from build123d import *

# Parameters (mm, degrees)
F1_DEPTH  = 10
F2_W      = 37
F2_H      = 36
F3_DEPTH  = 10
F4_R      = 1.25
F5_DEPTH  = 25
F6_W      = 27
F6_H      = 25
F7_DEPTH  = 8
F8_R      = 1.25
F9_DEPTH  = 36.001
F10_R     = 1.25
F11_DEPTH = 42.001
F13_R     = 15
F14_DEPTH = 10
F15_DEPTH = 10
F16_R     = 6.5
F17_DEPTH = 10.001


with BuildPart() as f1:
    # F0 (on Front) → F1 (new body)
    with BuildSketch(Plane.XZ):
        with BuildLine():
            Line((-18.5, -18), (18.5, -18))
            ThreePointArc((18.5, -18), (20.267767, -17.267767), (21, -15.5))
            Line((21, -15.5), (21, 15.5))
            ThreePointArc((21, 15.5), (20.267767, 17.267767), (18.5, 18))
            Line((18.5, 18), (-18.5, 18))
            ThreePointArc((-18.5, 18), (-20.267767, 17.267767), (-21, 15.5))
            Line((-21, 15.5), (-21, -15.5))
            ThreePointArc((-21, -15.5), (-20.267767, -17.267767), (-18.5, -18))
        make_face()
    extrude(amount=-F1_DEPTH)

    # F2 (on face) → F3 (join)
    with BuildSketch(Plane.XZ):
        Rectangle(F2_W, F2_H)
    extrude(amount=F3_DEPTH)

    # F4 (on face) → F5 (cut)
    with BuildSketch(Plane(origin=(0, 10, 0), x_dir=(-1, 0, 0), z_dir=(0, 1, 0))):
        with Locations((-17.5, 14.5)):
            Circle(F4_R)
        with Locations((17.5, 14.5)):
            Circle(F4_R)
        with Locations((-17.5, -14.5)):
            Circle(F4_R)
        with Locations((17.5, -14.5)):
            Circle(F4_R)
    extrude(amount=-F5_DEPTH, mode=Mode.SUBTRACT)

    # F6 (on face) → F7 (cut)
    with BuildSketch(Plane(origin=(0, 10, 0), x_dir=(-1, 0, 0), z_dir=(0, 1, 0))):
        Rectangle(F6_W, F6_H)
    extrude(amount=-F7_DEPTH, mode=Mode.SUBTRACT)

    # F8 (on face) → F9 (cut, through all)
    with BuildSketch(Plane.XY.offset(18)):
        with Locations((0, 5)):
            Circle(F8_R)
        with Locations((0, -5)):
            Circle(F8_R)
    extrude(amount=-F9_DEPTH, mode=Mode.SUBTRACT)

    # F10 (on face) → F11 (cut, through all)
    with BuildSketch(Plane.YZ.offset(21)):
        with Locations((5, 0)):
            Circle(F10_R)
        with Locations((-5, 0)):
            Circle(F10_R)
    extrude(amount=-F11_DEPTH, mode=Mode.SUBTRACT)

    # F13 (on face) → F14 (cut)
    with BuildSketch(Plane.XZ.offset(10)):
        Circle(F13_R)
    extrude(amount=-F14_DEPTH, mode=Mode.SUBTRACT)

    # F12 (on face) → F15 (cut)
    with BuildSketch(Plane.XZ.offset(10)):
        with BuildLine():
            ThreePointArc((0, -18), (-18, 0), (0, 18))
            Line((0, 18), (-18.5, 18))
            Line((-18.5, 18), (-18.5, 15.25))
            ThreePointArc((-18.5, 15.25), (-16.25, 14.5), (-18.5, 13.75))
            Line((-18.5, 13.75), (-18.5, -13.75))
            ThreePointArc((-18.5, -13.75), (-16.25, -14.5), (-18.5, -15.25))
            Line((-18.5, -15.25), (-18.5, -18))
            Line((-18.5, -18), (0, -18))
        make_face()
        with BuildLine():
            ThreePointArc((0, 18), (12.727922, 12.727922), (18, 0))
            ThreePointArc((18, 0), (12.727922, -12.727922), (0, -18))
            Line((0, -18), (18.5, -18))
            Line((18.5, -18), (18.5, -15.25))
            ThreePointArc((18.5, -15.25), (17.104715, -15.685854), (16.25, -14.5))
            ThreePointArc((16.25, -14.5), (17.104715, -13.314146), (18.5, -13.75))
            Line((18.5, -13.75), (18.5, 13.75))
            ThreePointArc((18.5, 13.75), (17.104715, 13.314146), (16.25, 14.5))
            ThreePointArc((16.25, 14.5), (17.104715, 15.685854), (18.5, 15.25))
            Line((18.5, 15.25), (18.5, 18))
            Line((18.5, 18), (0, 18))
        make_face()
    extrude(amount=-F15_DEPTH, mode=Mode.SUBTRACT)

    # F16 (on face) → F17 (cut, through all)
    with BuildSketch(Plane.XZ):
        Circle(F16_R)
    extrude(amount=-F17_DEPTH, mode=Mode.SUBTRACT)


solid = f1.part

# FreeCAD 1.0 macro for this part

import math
import FreeCAD as App
import Part
import Sketcher
Q = App.Units.Quantity

doc = App.newDocument("Part")
body = doc.addObject("PartDesign::Body", "Body")

# Sketch on XZ plane
sketch1 = doc.addObject("Sketcher::SketchObject", "Sketch")
body.addObject(sketch1)
sketch1.AttachmentSupport = (doc.XZ_Plane, [""])
sketch1.MapMode = "FlatFace"
sketch1.addGeometry([
    Part.LineSegment(App.Vector(-18.5, -18, 0), App.Vector(18.5, -18, 0)),  # 0
    Part.ArcOfCircle(Part.Circle(App.Vector(18.5, -15.5, 0), App.Vector(0, 0, 1), 2.5), math.radians(-90), math.radians(0)),  # 1
    Part.LineSegment(App.Vector(21, -15.5, 0), App.Vector(21, 15.5, 0)),  # 2
    Part.ArcOfCircle(Part.Circle(App.Vector(18.5, 15.5, 0), App.Vector(0, 0, 1), 2.5), math.radians(0), math.radians(90)),  # 3
    Part.LineSegment(App.Vector(18.5, 18, 0), App.Vector(-18.5, 18, 0)),  # 4
    Part.ArcOfCircle(Part.Circle(App.Vector(-18.5, 15.5, 0), App.Vector(0, 0, 1), 2.5), math.radians(90), math.radians(180)),  # 5
    Part.LineSegment(App.Vector(-21, 15.5, 0), App.Vector(-21, -15.5, 0)),  # 6
    Part.ArcOfCircle(Part.Circle(App.Vector(-18.5, -15.5, 0), App.Vector(0, 0, 1), 2.5), math.radians(180), math.radians(270)),  # 7
], False)
sketch1.addConstraint([
    Sketcher.Constraint("Tangent", 0, 2, 1, 1),
    Sketcher.Constraint("Tangent", 1, 2, 2, 1),
    Sketcher.Constraint("Tangent", 2, 2, 3, 1),
    Sketcher.Constraint("Tangent", 3, 2, 4, 1),
    Sketcher.Constraint("Tangent", 4, 2, 5, 1),
    Sketcher.Constraint("Tangent", 5, 2, 6, 1),
    Sketcher.Constraint("Tangent", 6, 2, 7, 1),
    Sketcher.Constraint("Tangent", 7, 2, 0, 1),
    Sketcher.Constraint("Horizontal", 0),
    Sketcher.Constraint("Vertical", 2),
    Sketcher.Constraint("Horizontal", 4),
    Sketcher.Constraint("Vertical", 6),
    Sketcher.Constraint("Equal", 1, 3),
    Sketcher.Constraint("Equal", 3, 5),
    Sketcher.Constraint("Equal", 5, 7),
    Sketcher.Constraint("Symmetric", 1, 3, 5, 3, -1, 1),
    Sketcher.Constraint("Radius", 1, Q("2.5 mm")),
    Sketcher.Constraint("DistanceX", 0, 1, 0, 2, Q("37 mm")),
    Sketcher.Constraint("DistanceY", 2, 1, 2, 2, Q("31 mm")),
])
pad1 = doc.addObject("PartDesign::Pad", "Pad")
body.addObject(pad1)
pad1.Profile = sketch1
pad1.Length = 10
pad1.Reversed = True

# Sketch on XZ plane
sketch2 = doc.addObject("Sketcher::SketchObject", "Sketch001")
body.addObject(sketch2)
sketch2.AttachmentSupport = (doc.XZ_Plane, [""])
sketch2.MapMode = "FlatFace"
sketch2.addGeometry([
    Part.LineSegment(App.Vector(-18, 18, 0), App.Vector(-18, -18, 0)),
    Part.LineSegment(App.Vector(-18, -18, 0), App.Vector(18, -18, 0)),
    Part.LineSegment(App.Vector(18, -18, 0), App.Vector(18, 18, 0)),
    Part.LineSegment(App.Vector(18, 18, 0), App.Vector(-18, 18, 0)),
], False)
sketch2.addConstraint([
    Sketcher.Constraint("Coincident", 0, 2, 1, 1),
    Sketcher.Constraint("Coincident", 1, 2, 2, 1),
    Sketcher.Constraint("Coincident", 2, 2, 3, 1),
    Sketcher.Constraint("Coincident", 3, 2, 0, 1),
    Sketcher.Constraint("Vertical", 0),
    Sketcher.Constraint("Horizontal", 1),
    Sketcher.Constraint("Vertical", 2),
    Sketcher.Constraint("Horizontal", 3),
    Sketcher.Constraint("Symmetric", 0, 2, 2, 2, -1, 1),
    Sketcher.Constraint("DistanceX", 1, 1, 1, 2, Q("37 mm")),
    Sketcher.Constraint("DistanceY", 0, 2, 0, 1, Q("36 mm")),
])
pad2 = doc.addObject("PartDesign::Pad", "Pad001")
body.addObject(pad2)
pad2.Profile = sketch2
pad2.Length = 10

# Sketch on XZ plane
sketch3 = doc.addObject("Sketcher::SketchObject", "Sketch002")
body.addObject(sketch3)
sketch3.AttachmentSupport = (doc.XZ_Plane, [""])
sketch3.MapMode = "FlatFace"
sketch3.AttachmentOffset = App.Placement(App.Vector(0, 0, -10), App.Rotation())
sketch3.addGeometry([
    Part.Circle(App.Vector(17.5, 14.5, 0), App.Vector(0, 0, 1), 1.2),
    Part.Circle(App.Vector(-17.5, 14.5, 0), App.Vector(0, 0, 1), 1.2),
    Part.Circle(App.Vector(17.5, -14.5, 0), App.Vector(0, 0, 1), 1.2),
    Part.Circle(App.Vector(-17.5, -14.5, 0), App.Vector(0, 0, 1), 1.2),
], False)
sketch3.addConstraint([
    Sketcher.Constraint("Equal", 0, 1),
    Sketcher.Constraint("Equal", 1, 2),
    Sketcher.Constraint("Equal", 2, 3),
    Sketcher.Constraint("Symmetric", 1, 3, 2, 3, -1, 1),
    Sketcher.Constraint("Symmetric", 0, 3, 3, 3, -1, 1),
    Sketcher.Constraint("Symmetric", 0, 3, 1, 3, -2),
    Sketcher.Constraint("Diameter", 0, Q("2.5 mm")),
    Sketcher.Constraint("DistanceX", 1, 3, 0, 3, Q("35 mm")),
    Sketcher.Constraint("DistanceY", 2, 3, 0, 3, Q("29 mm")),
])
pocket1 = doc.addObject("PartDesign::Pocket", "Pocket")
body.addObject(pocket1)
pocket1.Profile = sketch3
pocket1.Length = 25
pocket1.Reversed = True

# Sketch on XZ plane
sketch4 = doc.addObject("Sketcher::SketchObject", "Sketch003")
body.addObject(sketch4)
sketch4.AttachmentSupport = (doc.XZ_Plane, [""])
sketch4.MapMode = "FlatFace"
sketch4.AttachmentOffset = App.Placement(App.Vector(0, 0, -10), App.Rotation())
sketch4.addGeometry([
    Part.LineSegment(App.Vector(14, 12, 0), App.Vector(14, -12, 0)),
    Part.LineSegment(App.Vector(14, -12, 0), App.Vector(-14, -12, 0)),
    Part.LineSegment(App.Vector(-14, -12, 0), App.Vector(-14, 12, 0)),
    Part.LineSegment(App.Vector(-14, 12, 0), App.Vector(14, 12, 0)),
], False)
sketch4.addConstraint([
    Sketcher.Constraint("Coincident", 0, 2, 1, 1),
    Sketcher.Constraint("Coincident", 1, 2, 2, 1),
    Sketcher.Constraint("Coincident", 2, 2, 3, 1),
    Sketcher.Constraint("Coincident", 3, 2, 0, 1),
    Sketcher.Constraint("Vertical", 0),
    Sketcher.Constraint("Horizontal", 1),
    Sketcher.Constraint("Vertical", 2),
    Sketcher.Constraint("Horizontal", 3),
    Sketcher.Constraint("Symmetric", 0, 2, 2, 2, -1, 1),
    Sketcher.Constraint("DistanceX", 1, 2, 1, 1, Q("27 mm")),
    Sketcher.Constraint("DistanceY", 0, 2, 0, 1, Q("25 mm")),
])
pocket2 = doc.addObject("PartDesign::Pocket", "Pocket001")
body.addObject(pocket2)
pocket2.Profile = sketch4
pocket2.Length = 8
pocket2.Reversed = True

# Sketch on XY plane
sketch5 = doc.addObject("Sketcher::SketchObject", "Sketch004")
body.addObject(sketch5)
sketch5.AttachmentSupport = (doc.XY_Plane, [""])
sketch5.MapMode = "FlatFace"
sketch5.AttachmentOffset = App.Placement(App.Vector(0, 0, 18), App.Rotation())
sketch5.addGeometry([
    Part.Circle(App.Vector(0, 5, 0), App.Vector(0, 0, 1), 1.2),
    Part.Circle(App.Vector(0, -5, 0), App.Vector(0, 0, 1), 1.2),
], False)
sketch5.addConstraint([
    Sketcher.Constraint("Equal", 0, 1),
    Sketcher.Constraint("Symmetric", 0, 3, 1, 3, -1, 1),
    Sketcher.Constraint("PointOnObject", 0, 3, -2),
    Sketcher.Constraint("Diameter", 0, Q("2.5 mm")),
    Sketcher.Constraint("DistanceY", -1, 1, 0, 3, Q("5 mm")),
])
pocket3 = doc.addObject("PartDesign::Pocket", "Pocket002")
body.addObject(pocket3)
pocket3.Profile = sketch5
pocket3.Type = "ThroughAll"

# Sketch on YZ plane
sketch6 = doc.addObject("Sketcher::SketchObject", "Sketch005")
body.addObject(sketch6)
sketch6.AttachmentSupport = (doc.YZ_Plane, [""])
sketch6.MapMode = "FlatFace"
sketch6.AttachmentOffset = App.Placement(App.Vector(0, 0, 21), App.Rotation())
sketch6.addGeometry([
    Part.Circle(App.Vector(5, 0, 0), App.Vector(0, 0, 1), 1.2),
    Part.Circle(App.Vector(-5, 0, 0), App.Vector(0, 0, 1), 1.2),
], False)
sketch6.addConstraint([
    Sketcher.Constraint("Equal", 0, 1),
    Sketcher.Constraint("Symmetric", 0, 3, 1, 3, -1, 1),
    Sketcher.Constraint("PointOnObject", 0, 3, -1),
    Sketcher.Constraint("Diameter", 0, Q("2.5 mm")),
    Sketcher.Constraint("DistanceX", -1, 1, 0, 3, Q("5 mm")),
])
pocket4 = doc.addObject("PartDesign::Pocket", "Pocket003")
body.addObject(pocket4)
pocket4.Profile = sketch6
pocket4.Type = "ThroughAll"

# Sketch on XZ plane
sketch7 = doc.addObject("Sketcher::SketchObject", "Sketch006")
body.addObject(sketch7)
sketch7.AttachmentSupport = (doc.XZ_Plane, [""])
sketch7.MapMode = "FlatFace"
sketch7.AttachmentOffset = App.Placement(App.Vector(0, 0, 10), App.Rotation())
sketch7.addGeometry(Part.Circle(App.Vector(0, 0, 0), App.Vector(0, 0, 1), 15), False)
sketch7.addConstraint([
    Sketcher.Constraint("Coincident", 0, 3, -1, 1),
    Sketcher.Constraint("Diameter", 0, Q("30 mm")),
])
pocket5 = doc.addObject("PartDesign::Pocket", "Pocket004")
body.addObject(pocket5)
pocket5.Profile = sketch7
pocket5.Length = 10

# Sketch on XZ plane
sketch8 = doc.addObject("Sketcher::SketchObject", "Sketch007")
body.addObject(sketch8)
sketch8.AttachmentSupport = (doc.XZ_Plane, [""])
sketch8.MapMode = "FlatFace"
sketch8.AttachmentOffset = App.Placement(App.Vector(0, 0, 10), App.Rotation())
sketch8.addGeometry([
    Part.ArcOfCircle(Part.Circle(App.Vector(0, 0, 0), App.Vector(0, 0, 1), 18), math.radians(90), math.radians(270)),  # 0
    Part.LineSegment(App.Vector(0, 18, 0), App.Vector(-18.5, 18, 0)),  # 1
    Part.LineSegment(App.Vector(-18.5, 18, 0), App.Vector(-18.5, 15.2, 0)),  # 2
    Part.ArcOfCircle(Part.Circle(App.Vector(-17.5, 14.5, 0), App.Vector(0, 0, 1), 1.2), math.radians(-143), math.radians(143)),  # 3
    Part.LineSegment(App.Vector(-18.5, 13.8, 0), App.Vector(-18.5, -13.8, 0)),  # 4
    Part.ArcOfCircle(Part.Circle(App.Vector(-17.5, -14.5, 0), App.Vector(0, 0, 1), 1.2), math.radians(-143), math.radians(143)),  # 5
    Part.LineSegment(App.Vector(-18.5, -15.2, 0), App.Vector(-18.5, -18, 0)),  # 6
    Part.LineSegment(App.Vector(-18.5, -18, 0), App.Vector(0, -18, 0)),  # 7
    Part.ArcOfCircle(Part.Circle(App.Vector(0, 0, 0), App.Vector(0, 0, 1), 18), math.radians(0), math.radians(90)),  # 8
    Part.ArcOfCircle(Part.Circle(App.Vector(0, 0, 0), App.Vector(0, 0, 1), 18), math.radians(-90), math.radians(0)),  # 9
    Part.LineSegment(App.Vector(0, -18, 0), App.Vector(18.5, -18, 0)),  # 10
    Part.LineSegment(App.Vector(18.5, -18, 0), App.Vector(18.5, -15.2, 0)),  # 11
    Part.ArcOfCircle(Part.Circle(App.Vector(17.5, -14.5, 0), App.Vector(0, 0, 1), 1.3), math.radians(-180), math.radians(-37)),  # 12
    Part.ArcOfCircle(Part.Circle(App.Vector(17.5, -14.5, 0), App.Vector(0, 0, 1), 1.3), math.radians(37), math.radians(180)),  # 13
    Part.LineSegment(App.Vector(18.5, -13.8, 0), App.Vector(18.5, 13.8, 0)),  # 14
    Part.ArcOfCircle(Part.Circle(App.Vector(17.5, 14.5, 0), App.Vector(0, 0, 1), 1.3), math.radians(-180), math.radians(-37)),  # 15
    Part.ArcOfCircle(Part.Circle(App.Vector(17.5, 14.5, 0), App.Vector(0, 0, 1), 1.3), math.radians(37), math.radians(180)),  # 16
    Part.LineSegment(App.Vector(18.5, 15.2, 0), App.Vector(18.5, 18, 0)),  # 17
    Part.LineSegment(App.Vector(18.5, 18, 0), App.Vector(0, 18, 0)),  # 18
], False)
sketch8.addConstraint([
    Sketcher.Constraint("Tangent", 0, 1, 1, 1),
    Sketcher.Constraint("Coincident", 1, 2, 2, 1),
    Sketcher.Constraint("Coincident", 2, 2, 3, 2),
    Sketcher.Constraint("Coincident", 3, 1, 4, 1),
    Sketcher.Constraint("Coincident", 4, 2, 5, 2),
    Sketcher.Constraint("Coincident", 5, 1, 6, 1),
    Sketcher.Constraint("Coincident", 6, 2, 7, 1),
    Sketcher.Constraint("Tangent", 7, 2, 0, 2),
    Sketcher.Constraint("Tangent", 8, 1, 9, 2),
    Sketcher.Constraint("Tangent", 9, 1, 10, 1),
    Sketcher.Constraint("Coincident", 10, 2, 11, 1),
    Sketcher.Constraint("Coincident", 11, 2, 12, 2),
    Sketcher.Constraint("Tangent", 12, 1, 13, 2),
    Sketcher.Constraint("Coincident", 13, 1, 14, 1),
    Sketcher.Constraint("Coincident", 14, 2, 15, 2),
    Sketcher.Constraint("Tangent", 15, 1, 16, 2),
    Sketcher.Constraint("Coincident", 16, 1, 17, 1),
    Sketcher.Constraint("Coincident", 17, 2, 18, 1),
    Sketcher.Constraint("Tangent", 18, 2, 8, 2),
    Sketcher.Constraint("Horizontal", 1),
    Sketcher.Constraint("Vertical", 2),
    Sketcher.Constraint("Vertical", 4),
    Sketcher.Constraint("Vertical", 6),
    Sketcher.Constraint("Horizontal", 7),
    Sketcher.Constraint("Horizontal", 10),
    Sketcher.Constraint("Vertical", 11),
    Sketcher.Constraint("Vertical", 14),
    Sketcher.Constraint("Vertical", 17),
    Sketcher.Constraint("Horizontal", 18),
    Sketcher.Constraint("Coincident", 0, 3, -1, 1),
    Sketcher.Constraint("Coincident", 8, 3, -1, 1),
    Sketcher.Constraint("Coincident", 9, 1, 7, 2),
    Sketcher.Constraint("Equal", 3, 5),
    Sketcher.Constraint("Equal", 5, 12),
    Sketcher.Constraint("Equal", 12, 13),
    Sketcher.Constraint("Equal", 13, 15),
    Sketcher.Constraint("Equal", 15, 16),
    Sketcher.Constraint("Symmetric", 3, 3, 12, 3, -1, 1),
    Sketcher.Constraint("Symmetric", 5, 3, 15, 3, -1, 1),
    Sketcher.Constraint("Symmetric", 5, 3, 12, 3, -2),
    Sketcher.Constraint("PointOnObject", 8, 1, -1),
    Sketcher.Constraint("Horizontal", 5, 1, 11, 2),
    Sketcher.Constraint("Horizontal", 13, 3, 12, 1),
    Sketcher.Constraint("Horizontal", 4, 2, 13, 1),
    Sketcher.Constraint("Horizontal", 16, 3, 15, 1),
    Sketcher.Constraint("Horizontal", 2, 2, 16, 1),
    Sketcher.Constraint("Vertical", 2, 2, 3, 1),
    Sketcher.Constraint("Vertical", 4, 2, 5, 1),
    Sketcher.Constraint("Radius", 0, Q("18 mm")),
    Sketcher.Constraint("Radius", 3, Q("1.25 mm")),
    Sketcher.Constraint("DistanceX", 1, 2, 1, 1, Q("18.5 mm")),
    Sketcher.Constraint("DistanceY", 4, 2, 4, 1, Q("27.5 mm")),
    Sketcher.Constraint("DistanceY", 5, 3, 3, 3, Q("29 mm")),
])
pocket6 = doc.addObject("PartDesign::Pocket", "Pocket005")
body.addObject(pocket6)
pocket6.Profile = sketch8
pocket6.Length = 10

# Sketch on XZ plane
sketch9 = doc.addObject("Sketcher::SketchObject", "Sketch008")
body.addObject(sketch9)
sketch9.AttachmentSupport = (doc.XZ_Plane, [""])
sketch9.MapMode = "FlatFace"
sketch9.addGeometry(Part.Circle(App.Vector(0, 0, 0), App.Vector(0, 0, 1), 6), False)
sketch9.addConstraint([
    Sketcher.Constraint("Coincident", 0, 3, -1, 1),
    Sketcher.Constraint("Diameter", 0, Q("13 mm")),
])
pocket7 = doc.addObject("PartDesign::Pocket", "Pocket006")
body.addObject(pocket7)
pocket7.Profile = sketch9
pocket7.Type = "ThroughAll"

doc.recompute()
